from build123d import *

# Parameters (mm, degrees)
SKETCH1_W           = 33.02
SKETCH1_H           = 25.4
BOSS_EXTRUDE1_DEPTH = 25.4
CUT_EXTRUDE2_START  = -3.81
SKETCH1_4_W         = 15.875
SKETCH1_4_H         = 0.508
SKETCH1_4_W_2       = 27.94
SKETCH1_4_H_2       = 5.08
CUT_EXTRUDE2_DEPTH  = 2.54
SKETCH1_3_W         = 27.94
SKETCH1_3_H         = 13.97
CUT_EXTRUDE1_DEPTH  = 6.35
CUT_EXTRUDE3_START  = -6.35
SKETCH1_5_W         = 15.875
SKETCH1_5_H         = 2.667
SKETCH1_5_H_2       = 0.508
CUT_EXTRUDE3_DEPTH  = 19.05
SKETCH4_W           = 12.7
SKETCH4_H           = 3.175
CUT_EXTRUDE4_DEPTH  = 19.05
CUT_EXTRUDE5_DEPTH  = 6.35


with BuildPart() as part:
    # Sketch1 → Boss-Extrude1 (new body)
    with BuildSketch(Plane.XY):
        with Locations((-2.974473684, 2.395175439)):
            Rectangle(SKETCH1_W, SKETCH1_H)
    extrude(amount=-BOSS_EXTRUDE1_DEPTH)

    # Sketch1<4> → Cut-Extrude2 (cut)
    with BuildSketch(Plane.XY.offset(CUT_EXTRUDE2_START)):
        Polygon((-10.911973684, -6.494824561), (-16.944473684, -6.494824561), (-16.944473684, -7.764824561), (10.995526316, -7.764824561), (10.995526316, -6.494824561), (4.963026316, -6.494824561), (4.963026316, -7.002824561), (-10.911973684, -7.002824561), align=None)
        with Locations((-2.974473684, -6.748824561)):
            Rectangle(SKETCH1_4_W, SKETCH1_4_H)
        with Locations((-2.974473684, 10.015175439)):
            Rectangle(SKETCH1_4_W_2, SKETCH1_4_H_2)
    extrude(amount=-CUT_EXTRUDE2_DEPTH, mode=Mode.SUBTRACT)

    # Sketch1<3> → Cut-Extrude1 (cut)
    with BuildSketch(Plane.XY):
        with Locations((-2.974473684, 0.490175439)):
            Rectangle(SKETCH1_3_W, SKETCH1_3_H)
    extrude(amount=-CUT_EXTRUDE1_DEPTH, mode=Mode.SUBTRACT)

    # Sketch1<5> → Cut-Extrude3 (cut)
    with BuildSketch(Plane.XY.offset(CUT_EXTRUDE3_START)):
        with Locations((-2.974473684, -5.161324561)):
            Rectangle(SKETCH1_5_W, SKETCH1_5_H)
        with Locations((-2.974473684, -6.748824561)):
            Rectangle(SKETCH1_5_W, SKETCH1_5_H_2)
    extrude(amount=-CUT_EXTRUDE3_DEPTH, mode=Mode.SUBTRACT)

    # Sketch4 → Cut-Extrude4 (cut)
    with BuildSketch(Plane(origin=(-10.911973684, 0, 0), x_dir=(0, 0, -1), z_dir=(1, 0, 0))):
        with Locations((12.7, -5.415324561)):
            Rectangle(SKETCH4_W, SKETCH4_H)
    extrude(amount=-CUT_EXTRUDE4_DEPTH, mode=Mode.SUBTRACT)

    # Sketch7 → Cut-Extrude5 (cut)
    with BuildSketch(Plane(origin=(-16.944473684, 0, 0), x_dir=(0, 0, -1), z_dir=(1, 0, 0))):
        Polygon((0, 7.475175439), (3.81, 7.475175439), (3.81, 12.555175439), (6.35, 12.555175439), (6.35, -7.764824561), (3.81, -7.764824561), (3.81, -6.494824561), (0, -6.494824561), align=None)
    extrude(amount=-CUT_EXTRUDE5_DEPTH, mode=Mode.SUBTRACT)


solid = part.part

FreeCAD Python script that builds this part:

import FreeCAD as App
import Part
import Sketcher
Q = App.Units.Quantity

doc = App.newDocument("Part")
body = doc.addObject("PartDesign::Body", "Body")

# Sketch on XY plane
sketch1 = body.newObject("Sketcher::SketchObject", "Sketch")
sketch1.AttachmentSupport = (doc.getObject("XY_Plane"), [""])
sketch1.MapMode = "FlatFace"
sketch1.addGeometry([
    Part.LineSegment(App.Vector(-19, 15, 0), App.Vector(-19, -10, 0)),
    Part.LineSegment(App.Vector(-19, -10, 0), App.Vector(14, -10, 0)),
    Part.LineSegment(App.Vector(14, -10, 0), App.Vector(14, 15, 0)),
    Part.LineSegment(App.Vector(14, 15, 0), App.Vector(-19, 15, 0)),
], False)
sketch1.addConstraint([
    Sketcher.Constraint("Coincident", 0, 2, 1, 1),
    Sketcher.Constraint("Coincident", 1, 2, 2, 1),
    Sketcher.Constraint("Coincident", 2, 2, 3, 1),
    Sketcher.Constraint("Coincident", 3, 2, 0, 1),
    Sketcher.Constraint("Vertical", 0),
    Sketcher.Constraint("Horizontal", 1),
    Sketcher.Constraint("Vertical", 2),
    Sketcher.Constraint("Horizontal", 3),
    Sketcher.Constraint("DistanceY", 0, 2, 0, 1, Q("1 in")),
    Sketcher.Constraint("DistanceX", 1, 1, 1, 2, Q("1.3 in")),
    Sketcher.Constraint("DistanceX", 0, 2, -1, 1, 19.484474),
    Sketcher.Constraint("DistanceY", 0, 2, -1, 1, 10.304825),
])
pad1 = body.newObject("PartDesign::Pad", "Pad")
pad1.Profile = sketch1
pad1.Length = Q("1 in")
pad1.Reversed = True

# Sketch on XY plane
sketch2 = body.newObject("Sketcher::SketchObject", "Sketch001")
sketch2.AttachmentSupport = (doc.getObject("XY_Plane"), [""])
sketch2.MapMode = "FlatFace"
sketch2.AttachmentOffset = App.Placement(App.Vector(0, 0, -0.15 * 25.4), App.Rotation())
sketch2.addGeometry([
    Part.LineSegment(App.Vector(-16.9, -6.5, 0), App.Vector(-16.9, -7.8, 0)),  # 0
    Part.LineSegment(App.Vector(-16.9, -7.8, 0), App.Vector(11, -7.8, 0)),  # 1
    Part.LineSegment(App.Vector(11, -7.8, 0), App.Vector(11, -6.5, 0)),  # 2
    Part.LineSegment(App.Vector(11, -6.5, 0), App.Vector(-16.9, -6.5, 0)),  # 3
    Part.LineSegment(App.Vector(-16.9, 12.6, 0), App.Vector(-16.9, 7.5, 0)),  # 4
    Part.LineSegment(App.Vector(-16.9, 7.5, 0), App.Vector(11, 7.5, 0)),  # 5
    Part.LineSegment(App.Vector(11, 7.5, 0), App.Vector(11, 12.6, 0)),  # 6
    Part.LineSegment(App.Vector(11, 12.6, 0), App.Vector(-16.9, 12.6, 0)),  # 7
], False)
sketch2.addConstraint([
    Sketcher.Constraint("Coincident", 0, 2, 1, 1),
    Sketcher.Constraint("Coincident", 1, 2, 2, 1),
    Sketcher.Constraint("Coincident", 2, 2, 3, 1),
    Sketcher.Constraint("Coincident", 3, 2, 0, 1),
    Sketcher.Constraint("Coincident", 4, 2, 5, 1),
    Sketcher.Constraint("Coincident", 5, 2, 6, 1),
    Sketcher.Constraint("Coincident", 6, 2, 7, 1),
    Sketcher.Constraint("Coincident", 7, 2, 4, 1),
    Sketcher.Constraint("Vertical", 0),
    Sketcher.Constraint("Horizontal", 1),
    Sketcher.Constraint("Vertical", 2),
    Sketcher.Constraint("Horizontal", 3),
    Sketcher.Constraint("Vertical", 4),
    Sketcher.Constraint("Horizontal", 5),
    Sketcher.Constraint("Vertical", 6),
    Sketcher.Constraint("Horizontal", 7),
    Sketcher.Constraint("Vertical", 3, 2, 4, 2),
    Sketcher.Constraint("Vertical", 2, 2, 5, 2),
    Sketcher.Constraint("DistanceX", 1, 1, 1, 2, Q("1.1 in")),
    Sketcher.Constraint("DistanceY", 4, 2, 4, 1, Q("0.2 in")),
    Sketcher.Constraint("DistanceY", 0, 2, 0, 1, Q("0.05 in")),
    Sketcher.Constraint("DistanceY", 0, 2, 4, 2, Q("0.6 in")),
    Sketcher.Constraint("DistanceX", 0, 2, -1, 1, 16.944474),
    Sketcher.Constraint("DistanceY", 0, 2, -1, 1, 7.764825),
])
pocket1 = body.newObject("PartDesign::Pocket", "Pocket")
pocket1.Profile = sketch2
pocket1.Length = Q("0.1 in")

# Sketch on XY plane
sketch3 = body.newObject("Sketcher::SketchObject", "Sketch002")
sketch3.AttachmentSupport = (doc.getObject("XY_Plane"), [""])
sketch3.MapMode = "FlatFace"
sketch3.addGeometry([
    Part.LineSegment(App.Vector(-17, 7, 0), App.Vector(-17, -6, 0)),
    Part.LineSegment(App.Vector(-17, -6, 0), App.Vector(11, -6, 0)),
    Part.LineSegment(App.Vector(11, -6, 0), App.Vector(11, 7, 0)),
    Part.LineSegment(App.Vector(11, 7, 0), App.Vector(-17, 7, 0)),
], False)
sketch3.addConstraint([
    Sketcher.Constraint("Coincident", 0, 2, 1, 1),
    Sketcher.Constraint("Coincident", 1, 2, 2, 1),
    Sketcher.Constraint("Coincident", 2, 2, 3, 1),
    Sketcher.Constraint("Coincident", 3, 2, 0, 1),
    Sketcher.Constraint("Vertical", 0),
    Sketcher.Constraint("Horizontal", 1),
    Sketcher.Constraint("Vertical", 2),
    Sketcher.Constraint("Horizontal", 3),
    Sketcher.Constraint("DistanceX", 1, 1, 1, 2, Q("1.1 in")),
    Sketcher.Constraint("DistanceY", 0, 2, 0, 1, Q("0.55 in")),
    Sketcher.Constraint("DistanceX", 0, 2, -1, 1, 16.944474),
    Sketcher.Constraint("DistanceY", 0, 2, -1, 1, 6.494825),
])
pocket2 = body.newObject("PartDesign::Pocket", "Pocket001")
pocket2.Profile = sketch3
pocket2.Length = Q("0.25 in")

# Sketch on XY plane
sketch4 = body.newObject("Sketcher::SketchObject", "Sketch003")
sketch4.AttachmentSupport = (doc.getObject("XY_Plane"), [""])
sketch4.MapMode = "FlatFace"
sketch4.AttachmentOffset = App.Placement(App.Vector(0, 0, -0.25 * 25.4), App.Rotation())
sketch4.addGeometry([
    Part.LineSegment(App.Vector(-10.9, -3.8, 0), App.Vector(-10.9, -7, 0)),
    Part.LineSegment(App.Vector(-10.9, -7, 0), App.Vector(5, -7, 0)),
    Part.LineSegment(App.Vector(5, -7, 0), App.Vector(5, -3.8, 0)),
    Part.LineSegment(App.Vector(5, -3.8, 0), App.Vector(-10.9, -3.8, 0)),
], False)
sketch4.addConstraint([
    Sketcher.Constraint("Coincident", 0, 2, 1, 1),
    Sketcher.Constraint("Coincident", 1, 2, 2, 1),
    Sketcher.Constraint("Coincident", 2, 2, 3, 1),
    Sketcher.Constraint("Coincident", 3, 2, 0, 1),
    Sketcher.Constraint("Vertical", 0),
    Sketcher.Constraint("Horizontal", 1),
    Sketcher.Constraint("Vertical", 2),
    Sketcher.Constraint("Horizontal", 3),
    Sketcher.Constraint("DistanceX", 1, 1, 1, 2, Q("0.625 in")),
    Sketcher.Constraint("DistanceY", 0, 2, 0, 1, Q("0.125 in")),
    Sketcher.Constraint("DistanceX", 0, 2, -1, 1, 10.911974),
    Sketcher.Constraint("DistanceY", 0, 2, -1, 1, 7.002825),
])
pocket3 = body.newObject("PartDesign::Pocket", "Pocket002")
pocket3.Profile = sketch4
pocket3.Length = Q("0.75 in")

# Sketch on YZ plane
sketch5 = body.newObject("Sketcher::SketchObject", "Sketch004")
sketch5.AttachmentSupport = (doc.getObject("YZ_Plane"), [""])
sketch5.MapMode = "FlatFace"
sketch5.AttachmentOffset = App.Placement(App.Vector(0, 0, -10.911974), App.Rotation())
sketch5.addGeometry([
    Part.LineSegment(App.Vector(-3.8, -6.3, 0), App.Vector(-7, -6.3, 0)),
    Part.LineSegment(App.Vector(-7, -6.3, 0), App.Vector(-7, -19.1, 0)),
    Part.LineSegment(App.Vector(-7, -19.1, 0), App.Vector(-3.8, -19.1, 0)),
    Part.LineSegment(App.Vector(-3.8, -19.1, 0), App.Vector(-3.8, -6.3, 0)),
], False)
sketch5.addConstraint([
    Sketcher.Constraint("Coincident", 0, 2, 1, 1),
    Sketcher.Constraint("Coincident", 1, 2, 2, 1),
    Sketcher.Constraint("Coincident", 2, 2, 3, 1),
    Sketcher.Constraint("Coincident", 3, 2, 0, 1),
    Sketcher.Constraint("Horizontal", 0),
    Sketcher.Constraint("Vertical", 1),
    Sketcher.Constraint("Horizontal", 2),
    Sketcher.Constraint("Vertical", 3),
    Sketcher.Constraint("DistanceY", 1, 2, 1, 1, Q("0.5 in")),
    Sketcher.Constraint("DistanceX", 0, 2, 0, 1, Q("0.125 in")),
    Sketcher.Constraint("DistanceY", 0, 2, -1, 1, Q("0.25 in")),
    Sketcher.Constraint("DistanceX", 0, 2, -1, 1, 7.002825),
])
pocket4 = body.newObject("PartDesign::Pocket", "Pocket003")
pocket4.Profile = sketch5
pocket4.Length = Q("0.75 in")

# Sketch on YZ plane
sketch6 = body.newObject("Sketcher::SketchObject", "Sketch005")
sketch6.AttachmentSupport = (doc.getObject("YZ_Plane"), [""])
sketch6.MapMode = "FlatFace"
sketch6.AttachmentOffset = App.Placement(App.Vector(0, 0, -16.944474), App.Rotation())
sketch6.addGeometry([
    Part.LineSegment(App.Vector(7.5, -3.8, 0), App.Vector(7.5, 0, 0)),  # 0
    Part.LineSegment(App.Vector(7.5, 0, 0), App.Vector(-6.5, 0, 0)),  # 1
    Part.LineSegment(App.Vector(-6.5, 0, 0), App.Vector(-6.5, -3.8, 0)),  # 2
    Part.LineSegment(App.Vector(-6.5, -3.8, 0), App.Vector(-7.8, -3.8, 0)),  # 3
    Part.LineSegment(App.Vector(-7.8, -3.8, 0), App.Vector(-7.8, -6.3, 0)),  # 4
    Part.LineSegment(App.Vector(-7.8, -6.3, 0), App.Vector(12.6, -6.3, 0)),  # 5
    Part.LineSegment(App.Vector(12.6, -6.3, 0), App.Vector(12.6, -3.8, 0)),  # 6
    Part.LineSegment(App.Vector(12.6, -3.8, 0), App.Vector(7.5, -3.8, 0)),  # 7
], False)
sketch6.addConstraint([
    Sketcher.Constraint("Coincident", 0, 2, 1, 1),
    Sketcher.Constraint("Coincident", 1, 2, 2, 1),
    Sketcher.Constraint("Coincident", 2, 2, 3, 1),
    Sketcher.Constraint("Coincident", 3, 2, 4, 1),
    Sketcher.Constraint("Coincident", 4, 2, 5, 1),
    Sketcher.Constraint("Coincident", 5, 2, 6, 1),
    Sketcher.Constraint("Coincident", 6, 2, 7, 1),
    Sketcher.Constraint("Coincident", 7, 2, 0, 1),
    Sketcher.Constraint("Vertical", 0),
    Sketcher.Constraint("Horizontal", 1),
    Sketcher.Constraint("Vertical", 2),
    Sketcher.Constraint("Horizontal", 3),
    Sketcher.Constraint("Vertical", 4),
    Sketcher.Constraint("Horizontal", 5),
    Sketcher.Constraint("Vertical", 6),
    Sketcher.Constraint("Horizontal", 7),
    Sketcher.Constraint("PointOnObject", 0, 2, -1),
    Sketcher.Constraint("Horizontal", 3, 2, 6, 2),
    Sketcher.Constraint("DistanceX", 5, 1, 5, 2, Q("0.8 in")),
    Sketcher.Constraint("DistanceX", 7, 2, 7, 1, Q("0.2 in")),
    Sketcher.Constraint("DistanceY", 4, 2, 4, 1, Q("0.1 in")),
    Sketcher.Constraint("DistanceX", 1, 2, 1, 1, Q("0.55 in")),
    Sketcher.Constraint("DistanceY", 0, 1, 0, 2, Q("0.15 in")),
    Sketcher.Constraint("DistanceX", -1, 1, 0, 2, 7.475175),
])
pocket5 = body.newObject("PartDesign::Pocket", "Pocket004")
pocket5.Profile = sketch6
pocket5.Length = Q("0.25 in")

doc.recompute()
